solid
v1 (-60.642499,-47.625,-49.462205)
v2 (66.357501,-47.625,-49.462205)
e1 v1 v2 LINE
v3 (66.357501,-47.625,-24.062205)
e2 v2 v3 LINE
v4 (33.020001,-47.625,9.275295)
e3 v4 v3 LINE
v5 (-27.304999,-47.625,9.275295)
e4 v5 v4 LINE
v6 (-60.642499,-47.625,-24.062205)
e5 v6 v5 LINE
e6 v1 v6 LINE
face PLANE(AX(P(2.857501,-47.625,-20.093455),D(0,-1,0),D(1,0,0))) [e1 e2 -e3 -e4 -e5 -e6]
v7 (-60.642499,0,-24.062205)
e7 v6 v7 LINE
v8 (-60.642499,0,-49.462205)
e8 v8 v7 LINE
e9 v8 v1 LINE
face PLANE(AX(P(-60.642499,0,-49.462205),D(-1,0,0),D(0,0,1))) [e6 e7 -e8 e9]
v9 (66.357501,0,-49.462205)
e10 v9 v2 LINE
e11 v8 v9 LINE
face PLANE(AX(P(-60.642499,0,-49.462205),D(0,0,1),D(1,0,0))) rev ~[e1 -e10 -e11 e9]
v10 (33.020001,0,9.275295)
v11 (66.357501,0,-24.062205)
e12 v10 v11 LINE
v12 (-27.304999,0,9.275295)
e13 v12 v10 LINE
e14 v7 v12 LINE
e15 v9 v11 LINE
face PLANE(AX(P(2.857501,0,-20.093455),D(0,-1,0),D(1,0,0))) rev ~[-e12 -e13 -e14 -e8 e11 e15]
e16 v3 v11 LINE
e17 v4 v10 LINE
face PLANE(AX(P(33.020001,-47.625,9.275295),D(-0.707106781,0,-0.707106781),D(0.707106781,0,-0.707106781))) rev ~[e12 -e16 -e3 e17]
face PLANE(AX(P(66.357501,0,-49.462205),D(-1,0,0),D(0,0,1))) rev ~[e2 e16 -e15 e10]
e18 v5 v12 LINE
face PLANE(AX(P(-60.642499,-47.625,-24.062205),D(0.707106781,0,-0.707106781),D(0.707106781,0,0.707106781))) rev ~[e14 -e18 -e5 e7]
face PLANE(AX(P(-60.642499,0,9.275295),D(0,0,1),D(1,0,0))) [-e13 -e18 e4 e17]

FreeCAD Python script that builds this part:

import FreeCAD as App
import Part
import Sketcher
Q = App.Units.Quantity


def add_polygon(sketch, points):
    """Adds a closed chain of lines whose ends are joined by coincident constraints."""
    first, n = sketch.GeometryCount, len(points)
    for a, b in zip(points, points[1:] + points[:1]):
        sketch.addGeometry(Part.LineSegment(App.Vector(*a, 0), App.Vector(*b, 0)), False)
    for i in range(n):
        sketch.addConstraint(Sketcher.Constraint("Coincident", first + i, 2, first + (i + 1) % n, 1))

doc = App.newDocument("Part")
body = doc.addObject("PartDesign::Body", "Body")

sketch1 = doc.addObject("Sketcher::SketchObject", "Sketch")
body.addObject(sketch1)
sketch1.AttachmentSupport = (doc.XZ_Plane, [""])
sketch1.MapMode = "FlatFace"
add_polygon(sketch1, [(-61, 9), (-61, -49), (66, -49), (66, 9)])
sketch1.addConstraint([
    Sketcher.Constraint("Vertical", 0),
    Sketcher.Constraint("Horizontal", 1),
    Sketcher.Constraint("Vertical", 2),
    Sketcher.Constraint("Horizontal", 3),
    Sketcher.Constraint("DistanceX", 1, 1, 1, 2, Q("5 in")),
    Sketcher.Constraint("DistanceY", 0, 2, 0, 1, Q("2.3125 in")),
    Sketcher.Constraint("DistanceX", 0, 2, -1, 1, Q("2.3875 in")),
    Sketcher.Constraint("DistanceY", 0, 2, -1, 1, 49.462205),
])
pad1 = doc.addObject("PartDesign::Pad", "Pad")
body.addObject(pad1)
pad1.Profile = sketch1
pad1.Length = Q("1.875 in")

sketch2 = doc.addObject("Sketcher::SketchObject", "Sketch001")
body.addObject(sketch2)
sketch2.AttachmentSupport = (doc.XZ_Plane, [""])
sketch2.MapMode = "FlatFace"
sketch2.AttachmentOffset = App.Placement(App.Vector(0, 0, 1.875 * 25.4), App.Rotation())
add_polygon(sketch2, [(-61, 9), (-61, -24), (-27, 9)])
add_polygon(sketch2, [(33, 9), (66, -24), (66, 9)])
sketch2.addConstraint([
    Sketcher.Constraint("Vertical", 0),
    Sketcher.Constraint("Horizontal", 2),
    Sketcher.Constraint("Vertical", 4),
    Sketcher.Constraint("Horizontal", 5),
    Sketcher.Constraint("Perpendicular", 1, 3),
    Sketcher.Constraint("Horizontal", 0, 2, 3, 2),
    Sketcher.Constraint("Horizontal", 2, 2, 4, 2),
    Sketcher.Constraint("Equal", 2, 5),
    Sketcher.Constraint("DistanceX", 0, 2, 3, 2, Q("5 in")),
    Sketcher.Constraint("DistanceX", -1, 1, 5, 2, Q("1.3 in")),
    Sketcher.Constraint("DistanceX", 2, 2, 2, 1, Q("1.3125 in")),
    Sketcher.Constraint("DistanceY", 0, 2, -1, 1, 24.062205),
])
pocket1 = doc.addObject("PartDesign::Pocket", "Pocket")
body.addObject(pocket1)
pocket1.Profile = sketch2
pocket1.Length = Q("1.875 in")

doc.recompute()
